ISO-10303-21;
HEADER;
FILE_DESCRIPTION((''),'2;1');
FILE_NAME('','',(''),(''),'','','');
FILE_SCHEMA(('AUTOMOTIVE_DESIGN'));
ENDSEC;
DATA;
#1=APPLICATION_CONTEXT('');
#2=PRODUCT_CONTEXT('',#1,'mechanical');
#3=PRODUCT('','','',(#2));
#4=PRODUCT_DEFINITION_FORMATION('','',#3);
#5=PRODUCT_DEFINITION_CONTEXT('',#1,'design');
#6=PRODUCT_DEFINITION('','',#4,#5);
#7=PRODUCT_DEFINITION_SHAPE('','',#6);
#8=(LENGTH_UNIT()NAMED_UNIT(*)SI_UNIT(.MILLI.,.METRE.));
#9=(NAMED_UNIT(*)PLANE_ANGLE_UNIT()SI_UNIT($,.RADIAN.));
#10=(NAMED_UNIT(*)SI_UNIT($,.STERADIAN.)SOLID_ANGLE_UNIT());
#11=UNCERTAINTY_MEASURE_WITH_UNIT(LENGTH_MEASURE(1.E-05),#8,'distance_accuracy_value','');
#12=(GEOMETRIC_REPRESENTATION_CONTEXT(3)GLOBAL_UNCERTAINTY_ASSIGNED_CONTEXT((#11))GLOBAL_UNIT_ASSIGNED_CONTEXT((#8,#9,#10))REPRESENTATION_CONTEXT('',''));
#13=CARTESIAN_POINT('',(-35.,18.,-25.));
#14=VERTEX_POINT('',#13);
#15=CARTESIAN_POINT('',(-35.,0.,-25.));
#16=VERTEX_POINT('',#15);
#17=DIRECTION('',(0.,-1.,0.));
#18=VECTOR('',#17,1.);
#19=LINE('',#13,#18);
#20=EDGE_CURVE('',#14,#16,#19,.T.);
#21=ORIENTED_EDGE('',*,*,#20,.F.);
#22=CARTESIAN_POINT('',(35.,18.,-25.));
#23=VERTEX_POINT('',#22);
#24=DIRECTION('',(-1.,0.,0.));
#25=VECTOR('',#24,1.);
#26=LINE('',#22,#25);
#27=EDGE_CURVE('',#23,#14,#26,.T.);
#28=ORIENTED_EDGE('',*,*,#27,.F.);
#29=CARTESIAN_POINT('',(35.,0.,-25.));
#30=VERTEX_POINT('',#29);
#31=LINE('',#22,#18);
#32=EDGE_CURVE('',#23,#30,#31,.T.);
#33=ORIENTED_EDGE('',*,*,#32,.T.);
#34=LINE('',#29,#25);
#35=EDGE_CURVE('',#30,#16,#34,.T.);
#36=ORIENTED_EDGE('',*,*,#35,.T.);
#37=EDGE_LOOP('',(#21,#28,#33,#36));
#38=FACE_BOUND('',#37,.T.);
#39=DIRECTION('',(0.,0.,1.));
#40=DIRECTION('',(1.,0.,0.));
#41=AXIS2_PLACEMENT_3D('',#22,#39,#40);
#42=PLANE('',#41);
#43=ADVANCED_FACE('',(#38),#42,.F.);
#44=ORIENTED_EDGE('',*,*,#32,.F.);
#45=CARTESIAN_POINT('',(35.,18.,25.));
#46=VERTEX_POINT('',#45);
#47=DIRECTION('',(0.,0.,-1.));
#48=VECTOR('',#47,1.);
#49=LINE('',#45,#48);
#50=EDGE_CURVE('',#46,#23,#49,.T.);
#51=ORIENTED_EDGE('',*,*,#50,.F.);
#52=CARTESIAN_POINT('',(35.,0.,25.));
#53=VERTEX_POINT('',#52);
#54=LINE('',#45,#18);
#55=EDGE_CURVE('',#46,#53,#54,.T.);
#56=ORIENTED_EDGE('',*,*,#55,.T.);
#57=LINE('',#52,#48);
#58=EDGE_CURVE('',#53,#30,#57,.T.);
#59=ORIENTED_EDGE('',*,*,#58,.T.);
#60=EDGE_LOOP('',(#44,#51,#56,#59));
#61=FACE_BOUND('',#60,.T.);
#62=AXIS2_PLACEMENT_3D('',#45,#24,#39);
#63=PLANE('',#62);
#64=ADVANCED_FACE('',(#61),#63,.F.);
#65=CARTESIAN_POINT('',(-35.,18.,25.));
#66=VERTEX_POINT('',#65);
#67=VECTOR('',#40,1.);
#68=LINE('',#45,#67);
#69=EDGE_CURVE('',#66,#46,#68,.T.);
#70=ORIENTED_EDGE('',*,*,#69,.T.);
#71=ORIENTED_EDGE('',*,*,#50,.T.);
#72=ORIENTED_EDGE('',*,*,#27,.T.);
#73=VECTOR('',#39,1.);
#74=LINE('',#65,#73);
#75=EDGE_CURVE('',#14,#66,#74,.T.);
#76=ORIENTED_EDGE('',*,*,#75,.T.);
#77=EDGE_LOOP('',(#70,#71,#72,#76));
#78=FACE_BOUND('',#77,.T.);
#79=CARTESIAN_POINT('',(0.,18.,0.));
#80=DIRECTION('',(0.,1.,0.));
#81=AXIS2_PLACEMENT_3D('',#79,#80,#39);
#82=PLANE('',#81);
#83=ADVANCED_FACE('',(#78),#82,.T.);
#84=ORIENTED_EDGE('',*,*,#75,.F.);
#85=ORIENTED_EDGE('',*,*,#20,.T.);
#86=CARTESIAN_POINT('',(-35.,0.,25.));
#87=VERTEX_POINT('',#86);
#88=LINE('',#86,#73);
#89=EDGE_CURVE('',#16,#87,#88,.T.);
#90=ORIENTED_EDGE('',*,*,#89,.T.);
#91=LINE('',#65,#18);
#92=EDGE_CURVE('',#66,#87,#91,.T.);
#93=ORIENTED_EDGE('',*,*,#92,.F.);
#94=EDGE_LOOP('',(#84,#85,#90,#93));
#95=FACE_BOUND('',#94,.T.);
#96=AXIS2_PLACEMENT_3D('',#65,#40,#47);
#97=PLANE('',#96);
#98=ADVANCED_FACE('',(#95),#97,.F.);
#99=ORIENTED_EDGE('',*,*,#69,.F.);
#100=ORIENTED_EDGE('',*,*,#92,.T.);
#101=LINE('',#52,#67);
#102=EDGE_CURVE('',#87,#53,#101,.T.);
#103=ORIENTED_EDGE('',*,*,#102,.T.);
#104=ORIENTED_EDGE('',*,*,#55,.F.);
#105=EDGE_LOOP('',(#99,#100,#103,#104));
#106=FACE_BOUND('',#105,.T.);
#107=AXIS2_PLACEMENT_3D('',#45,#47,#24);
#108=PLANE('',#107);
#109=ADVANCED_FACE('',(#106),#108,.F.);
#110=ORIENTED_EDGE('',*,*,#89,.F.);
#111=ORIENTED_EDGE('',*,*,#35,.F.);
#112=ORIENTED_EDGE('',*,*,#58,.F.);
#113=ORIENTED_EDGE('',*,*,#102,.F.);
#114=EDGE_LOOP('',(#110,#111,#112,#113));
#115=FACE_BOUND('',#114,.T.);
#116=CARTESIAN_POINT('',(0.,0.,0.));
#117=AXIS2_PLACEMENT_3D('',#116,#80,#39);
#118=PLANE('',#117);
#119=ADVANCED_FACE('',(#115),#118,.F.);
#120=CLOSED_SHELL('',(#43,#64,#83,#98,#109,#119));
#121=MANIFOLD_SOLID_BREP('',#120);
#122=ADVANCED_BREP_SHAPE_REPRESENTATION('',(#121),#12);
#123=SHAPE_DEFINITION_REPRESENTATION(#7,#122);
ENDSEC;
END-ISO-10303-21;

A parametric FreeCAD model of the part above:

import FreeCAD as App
import Part
import Sketcher

doc = App.newDocument("Part")
body = doc.addObject("PartDesign::Body", "Body")

# Sketch on XZ plane
sketch1 = body.newObject("Sketcher::SketchObject", "Sketch")
sketch1.AttachmentSupport = (doc.getObject("XZ_Plane"), [""])
sketch1.MapMode = "FlatFace"
sketch1.addGeometry([
    Part.LineSegment(App.Vector(-35, -25, 0), App.Vector(-35, 25, 0)),
    Part.LineSegment(App.Vector(-35, 25, 0), App.Vector(35, 25, 0)),
    Part.LineSegment(App.Vector(35, 25, 0), App.Vector(35, -25, 0)),
    Part.LineSegment(App.Vector(35, -25, 0), App.Vector(-35, -25, 0)),
], False)
sketch1.addConstraint([
    Sketcher.Constraint("Coincident", 0, 2, 1, 1),
    Sketcher.Constraint("Coincident", 1, 2, 2, 1),
    Sketcher.Constraint("Coincident", 2, 2, 3, 1),
    Sketcher.Constraint("Coincident", 3, 2, 0, 1),
    Sketcher.Constraint("Vertical", 0),
    Sketcher.Constraint("Horizontal", 1),
    Sketcher.Constraint("Vertical", 2),
    Sketcher.Constraint("Horizontal", 3),
    Sketcher.Constraint("Symmetric", 0, 2, 2, 2, -1, 1),
    Sketcher.Constraint("DistanceX", 1, 1, 1, 2, 70.0),
    Sketcher.Constraint("DistanceY", 0, 1, 0, 2, 50.0),
])
pad1 = body.newObject("PartDesign::Pad", "Pad")
pad1.Profile = sketch1
pad1.Length = 18
pad1.Reversed = True

doc.recompute()
